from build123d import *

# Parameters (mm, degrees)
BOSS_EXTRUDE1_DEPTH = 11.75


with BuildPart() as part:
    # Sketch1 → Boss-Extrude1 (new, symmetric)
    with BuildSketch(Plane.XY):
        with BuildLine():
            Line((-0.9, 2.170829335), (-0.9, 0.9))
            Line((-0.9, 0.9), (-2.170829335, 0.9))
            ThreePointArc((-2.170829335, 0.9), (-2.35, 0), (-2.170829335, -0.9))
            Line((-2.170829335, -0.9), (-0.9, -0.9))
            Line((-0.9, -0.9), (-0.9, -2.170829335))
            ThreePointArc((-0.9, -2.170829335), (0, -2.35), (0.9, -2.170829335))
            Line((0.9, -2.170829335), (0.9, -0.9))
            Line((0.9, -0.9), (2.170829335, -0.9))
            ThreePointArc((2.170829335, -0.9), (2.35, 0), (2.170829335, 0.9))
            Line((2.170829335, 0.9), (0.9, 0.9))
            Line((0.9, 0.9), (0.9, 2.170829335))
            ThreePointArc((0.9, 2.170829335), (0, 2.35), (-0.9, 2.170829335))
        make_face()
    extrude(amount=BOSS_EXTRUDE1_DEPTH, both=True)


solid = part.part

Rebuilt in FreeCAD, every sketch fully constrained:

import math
import FreeCAD as App
import Part
import Sketcher

V = App.Vector
Q = App.Units.Quantity

doc = App.newDocument("Part")
params = doc.addObject("Spreadsheet::Sheet", "Params")
for row, (alias, value) in enumerate([
    ("sketch1_radius", "2.35 mm"),
    ("pad1_length", "23.5 mm"),
], start=1):
    params.set(f"A{row}", alias)
    params.set(f"B{row}", "=" + value)
    params.setAlias(f"B{row}", alias)

body = doc.addObject("PartDesign::Body", "Body")

# Sketch on XY plane
sketch1 = body.newObject("Sketcher::SketchObject", "Sketch")
sketch1.AttachmentSupport = (doc.getObject("XY_Plane"), [""])
sketch1.MapMode = "FlatFace"
sketch1.addGeometry(Part.LineSegment(V(-0.9, 2.2, 0), V(-0.9, 0.9, 0)), False)
sketch1.addGeometry(Part.LineSegment(V(-0.9, 0.9, 0), V(-2.2, 0.9, 0)), False)
sketch1.addGeometry(Part.ArcOfCircle(Part.Circle(V(0, 0, 0), V(0, 0, 1), 2.4), math.radians(157), math.radians(203)), False)
sketch1.addGeometry(Part.LineSegment(V(-2.2, -0.9, 0), V(-0.9, -0.9, 0)), False)
sketch1.addGeometry(Part.LineSegment(V(-0.9, -0.9, 0), V(-0.9, -2.2, 0)), False)
sketch1.addGeometry(Part.ArcOfCircle(Part.Circle(V(0, 0, 0), V(0, 0, 1), 2.4), math.radians(-113), math.radians(-67)), False)
sketch1.addGeometry(Part.LineSegment(V(0.9, -2.2, 0), V(0.9, -0.9, 0)), False)
sketch1.addGeometry(Part.LineSegment(V(0.9, -0.9, 0), V(2.2, -0.9, 0)), False)
sketch1.addGeometry(Part.ArcOfCircle(Part.Circle(V(0, 0, 0), V(0, 0, 1), 2.4), math.radians(-23), math.radians(23)), False)
sketch1.addGeometry(Part.LineSegment(V(2.2, 0.9, 0), V(0.9, 0.9, 0)), False)
sketch1.addGeometry(Part.LineSegment(V(0.9, 0.9, 0), V(0.9, 2.2, 0)), False)
sketch1.addGeometry(Part.ArcOfCircle(Part.Circle(V(0, 0, 0), V(0, 0, 1), 2.4), math.radians(67), math.radians(113)), False)
sketch1.addConstraint(Sketcher.Constraint("Coincident", 0, 2, 1, 1))
sketch1.addConstraint(Sketcher.Constraint("Coincident", 1, 2, 2, 1))
sketch1.addConstraint(Sketcher.Constraint("Coincident", 2, 2, 3, 1))
sketch1.addConstraint(Sketcher.Constraint("Coincident", 3, 2, 4, 1))
sketch1.addConstraint(Sketcher.Constraint("Coincident", 4, 2, 5, 1))
sketch1.addConstraint(Sketcher.Constraint("Coincident", 5, 2, 6, 1))
sketch1.addConstraint(Sketcher.Constraint("Coincident", 6, 2, 7, 1))
sketch1.addConstraint(Sketcher.Constraint("Coincident", 7, 2, 8, 1))
sketch1.addConstraint(Sketcher.Constraint("Coincident", 8, 2, 9, 1))
sketch1.addConstraint(Sketcher.Constraint("Coincident", 9, 2, 10, 1))
sketch1.addConstraint(Sketcher.Constraint("Coincident", 10, 2, 11, 1))
sketch1.addConstraint(Sketcher.Constraint("Coincident", 11, 2, 0, 1))
sketch1.addConstraint(Sketcher.Constraint("Vertical", 0))
sketch1.addConstraint(Sketcher.Constraint("Horizontal", 1))
sketch1.addConstraint(Sketcher.Constraint("Horizontal", 3))
sketch1.addConstraint(Sketcher.Constraint("Vertical", 4))
sketch1.addConstraint(Sketcher.Constraint("Vertical", 6))
sketch1.addConstraint(Sketcher.Constraint("Horizontal", 7))
sketch1.addConstraint(Sketcher.Constraint("Horizontal", 9))
sketch1.addConstraint(Sketcher.Constraint("Vertical", 10))
sketch1.addConstraint(Sketcher.Constraint("Coincident", 2, 3, -1, 1))
sketch1.addConstraint(Sketcher.Constraint("Coincident", 5, 3, -1, 1))
sketch1.addConstraint(Sketcher.Constraint("Coincident", 8, 3, -1, 1))
sketch1.addConstraint(Sketcher.Constraint("Coincident", 11, 3, -1, 1))
sketch1.addConstraint(Sketcher.Constraint("Equal", 2, 5))
sketch1.addConstraint(Sketcher.Constraint("Equal", 5, 8))
sketch1.addConstraint(Sketcher.Constraint("Equal", 8, 11))
sketch1.addConstraint(Sketcher.Constraint("Symmetric", 0, 2, 6, 2, -1, 1))
sketch1.addConstraint(Sketcher.Constraint("Symmetric", 3, 2, 9, 2, -1, 1))
sketch1.addConstraint(Sketcher.Constraint("Symmetric", 3, 2, 6, 2, -2))
sketch1.addConstraint(Sketcher.Constraint("Equal", 9, 0))
sketch1.addConstraint(Sketcher.Constraint("Radius", 2, Q("2.35 mm")))
sketch1.addConstraint(Sketcher.Constraint("DistanceX", 0, 2, -1, 1, Q("0.9 mm")))
sketch1.setExpression("Constraints[31]", "Params.sketch1_radius")
pad1 = body.newObject("PartDesign::Pad", "Pad")
pad1.Profile = sketch1
pad1.setExpression("Length", "Params.pad1_length")
pad1.Midplane = True

doc.recompute()
